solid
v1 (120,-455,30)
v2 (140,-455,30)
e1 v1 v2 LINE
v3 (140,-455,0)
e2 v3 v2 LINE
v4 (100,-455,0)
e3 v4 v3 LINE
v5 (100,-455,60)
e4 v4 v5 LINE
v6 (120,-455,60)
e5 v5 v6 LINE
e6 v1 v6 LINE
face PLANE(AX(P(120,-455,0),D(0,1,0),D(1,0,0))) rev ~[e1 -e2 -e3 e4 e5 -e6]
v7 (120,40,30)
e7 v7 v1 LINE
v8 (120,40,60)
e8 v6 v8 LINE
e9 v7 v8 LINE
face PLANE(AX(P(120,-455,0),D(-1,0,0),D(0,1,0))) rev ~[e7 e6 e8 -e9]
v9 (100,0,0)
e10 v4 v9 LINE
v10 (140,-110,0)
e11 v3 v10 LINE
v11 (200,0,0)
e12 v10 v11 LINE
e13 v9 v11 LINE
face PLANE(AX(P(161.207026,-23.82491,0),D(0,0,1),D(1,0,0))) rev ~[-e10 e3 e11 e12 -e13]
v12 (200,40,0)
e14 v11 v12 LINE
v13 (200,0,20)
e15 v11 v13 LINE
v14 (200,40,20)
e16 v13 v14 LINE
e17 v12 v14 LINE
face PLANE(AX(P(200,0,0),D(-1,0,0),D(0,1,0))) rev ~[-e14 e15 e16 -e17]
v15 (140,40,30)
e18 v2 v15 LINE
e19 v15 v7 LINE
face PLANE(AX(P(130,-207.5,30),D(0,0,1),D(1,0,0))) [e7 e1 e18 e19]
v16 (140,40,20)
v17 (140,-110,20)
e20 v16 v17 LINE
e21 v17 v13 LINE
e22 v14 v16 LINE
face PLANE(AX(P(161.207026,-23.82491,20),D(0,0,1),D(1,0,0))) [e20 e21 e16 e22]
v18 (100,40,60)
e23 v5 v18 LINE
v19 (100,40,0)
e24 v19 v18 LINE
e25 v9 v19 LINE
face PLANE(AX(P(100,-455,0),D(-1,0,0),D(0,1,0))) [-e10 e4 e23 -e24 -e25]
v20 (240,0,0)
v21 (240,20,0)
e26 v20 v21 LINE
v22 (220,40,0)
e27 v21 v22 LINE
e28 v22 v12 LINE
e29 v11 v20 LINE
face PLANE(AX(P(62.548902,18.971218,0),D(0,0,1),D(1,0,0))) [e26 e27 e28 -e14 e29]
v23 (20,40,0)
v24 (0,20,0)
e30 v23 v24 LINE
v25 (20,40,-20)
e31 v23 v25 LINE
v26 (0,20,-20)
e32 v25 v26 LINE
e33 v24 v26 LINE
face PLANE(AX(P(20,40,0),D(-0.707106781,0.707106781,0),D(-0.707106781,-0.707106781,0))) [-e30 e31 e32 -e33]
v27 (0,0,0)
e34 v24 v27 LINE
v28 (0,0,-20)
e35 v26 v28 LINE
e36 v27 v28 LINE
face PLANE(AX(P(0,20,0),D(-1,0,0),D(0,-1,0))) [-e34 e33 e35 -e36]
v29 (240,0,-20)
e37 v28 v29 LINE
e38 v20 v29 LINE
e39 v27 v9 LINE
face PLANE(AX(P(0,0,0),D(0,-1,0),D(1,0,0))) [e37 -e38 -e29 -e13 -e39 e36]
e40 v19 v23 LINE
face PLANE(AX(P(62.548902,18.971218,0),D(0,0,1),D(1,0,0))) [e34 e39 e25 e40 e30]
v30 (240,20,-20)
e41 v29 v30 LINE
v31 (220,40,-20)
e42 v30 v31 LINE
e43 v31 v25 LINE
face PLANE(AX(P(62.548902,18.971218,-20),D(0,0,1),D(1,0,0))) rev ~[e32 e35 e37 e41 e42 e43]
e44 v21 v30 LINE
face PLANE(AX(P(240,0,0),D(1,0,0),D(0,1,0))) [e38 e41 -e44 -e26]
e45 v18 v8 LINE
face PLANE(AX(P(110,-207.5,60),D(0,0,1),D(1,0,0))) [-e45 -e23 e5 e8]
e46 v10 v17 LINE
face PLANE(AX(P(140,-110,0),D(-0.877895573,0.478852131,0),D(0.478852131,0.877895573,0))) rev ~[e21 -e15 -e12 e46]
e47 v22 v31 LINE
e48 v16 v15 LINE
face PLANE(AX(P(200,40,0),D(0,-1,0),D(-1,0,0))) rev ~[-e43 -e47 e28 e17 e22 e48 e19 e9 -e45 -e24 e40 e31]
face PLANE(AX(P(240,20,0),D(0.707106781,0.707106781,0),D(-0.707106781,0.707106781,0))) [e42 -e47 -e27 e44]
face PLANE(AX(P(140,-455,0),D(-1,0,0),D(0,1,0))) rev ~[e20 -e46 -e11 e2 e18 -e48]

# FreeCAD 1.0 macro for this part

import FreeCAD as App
import Part
import Sketcher

V = App.Vector

doc = App.newDocument("Part")
body = doc.addObject("PartDesign::Body", "Body")

# Sketch on XY plane
sketch1 = body.newObject("Sketcher::SketchObject", "Sketch")
sketch1.AttachmentSupport = (doc.getObject("XY_Plane"), [""])
sketch1.MapMode = "FlatFace"
sketch1.addGeometry(Part.LineSegment(V(20, 40, 0), V(0, 20, 0)), False)
sketch1.addGeometry(Part.LineSegment(V(0, 20, 0), V(0, 0, 0)), False)
sketch1.addGeometry(Part.LineSegment(V(0, 0, 0), V(240, 0, 0)), False)
sketch1.addGeometry(Part.LineSegment(V(240, 0, 0), V(240, 20, 0)), False)
sketch1.addGeometry(Part.LineSegment(V(240, 20, 0), V(220, 40, 0)), False)
sketch1.addGeometry(Part.LineSegment(V(220, 40, 0), V(20, 40, 0)), False)
sketch1.addConstraint(Sketcher.Constraint("Coincident", 0, 2, 1, 1))
sketch1.addConstraint(Sketcher.Constraint("Coincident", 1, 2, 2, 1))
sketch1.addConstraint(Sketcher.Constraint("Coincident", 2, 2, 3, 1))
sketch1.addConstraint(Sketcher.Constraint("Coincident", 3, 2, 4, 1))
sketch1.addConstraint(Sketcher.Constraint("Coincident", 4, 2, 5, 1))
sketch1.addConstraint(Sketcher.Constraint("Coincident", 5, 2, 0, 1))
sketch1.addConstraint(Sketcher.Constraint("Vertical", 1))
sketch1.addConstraint(Sketcher.Constraint("Horizontal", 2))
sketch1.addConstraint(Sketcher.Constraint("Vertical", 3))
sketch1.addConstraint(Sketcher.Constraint("Horizontal", 5))
sketch1.addConstraint(Sketcher.Constraint("Coincident", 1, 2, -1, 1))
sketch1.addConstraint(Sketcher.Constraint("Perpendicular", 0, 4))
sketch1.addConstraint(Sketcher.Constraint("Horizontal", 0, 2, 3, 2))
sketch1.addConstraint(Sketcher.Constraint("Equal", 0, 4))
sketch1.addConstraint(Sketcher.Constraint("DistanceX", 2, 1, 2, 2, 240.0))
sketch1.addConstraint(Sketcher.Constraint("DistanceX", 5, 2, 5, 1, 200.0))
sketch1.addConstraint(Sketcher.Constraint("DistanceY", 1, 2, 1, 1, 20.0))
pad1 = body.newObject("PartDesign::Pad", "Pad")
pad1.Profile = sketch1
pad1.Length = 20
pad1.Reversed = True

# Sketch on XY plane
sketch2 = body.newObject("Sketcher::SketchObject", "Sketch001")
sketch2.AttachmentSupport = (doc.getObject("XY_Plane"), [""])
sketch2.MapMode = "FlatFace"
sketch2.addGeometry(Part.LineSegment(V(100, 40, 0), V(100, -455, 0)), False)
sketch2.addGeometry(Part.LineSegment(V(100, -455, 0), V(120, -455, 0)), False)
sketch2.addGeometry(Part.LineSegment(V(120, -455, 0), V(120, 40, 0)), False)
sketch2.addGeometry(Part.LineSegment(V(120, 40, 0), V(100, 40, 0)), False)
sketch2.addConstraint(Sketcher.Constraint("Coincident", 0, 2, 1, 1))
sketch2.addConstraint(Sketcher.Constraint("Coincident", 1, 2, 2, 1))
sketch2.addConstraint(Sketcher.Constraint("Coincident", 2, 2, 3, 1))
sketch2.addConstraint(Sketcher.Constraint("Coincident", 3, 2, 0, 1))
sketch2.addConstraint(Sketcher.Constraint("Vertical", 0))
sketch2.addConstraint(Sketcher.Constraint("Horizontal", 1))
sketch2.addConstraint(Sketcher.Constraint("Vertical", 2))
sketch2.addConstraint(Sketcher.Constraint("Horizontal", 3))
sketch2.addConstraint(Sketcher.Constraint("DistanceX", 1, 1, 1, 2, 20.0))
sketch2.addConstraint(Sketcher.Constraint("DistanceY", 0, 2, 0, 1, 495.0))
sketch2.addConstraint(Sketcher.Constraint("DistanceX", -1, 1, 0, 2, 100.0))
sketch2.addConstraint(Sketcher.Constraint("DistanceY", 0, 2, -1, 1, 455.0))
pad2 = body.newObject("PartDesign::Pad", "Pad001")
pad2.Profile = sketch2
pad2.Length = 60

# Sketch on XY plane
sketch3 = body.newObject("Sketcher::SketchObject", "Sketch002")
sketch3.AttachmentSupport = (doc.getObject("XY_Plane"), [""])
sketch3.MapMode = "FlatFace"
sketch3.addGeometry(Part.LineSegment(V(140, 40, 0), V(120, 40, 0)), False)
sketch3.addGeometry(Part.LineSegment(V(120, 40, 0), V(120, -455, 0)), False)
sketch3.addGeometry(Part.LineSegment(V(120, -455, 0), V(140, -455, 0)), False)
sketch3.addGeometry(Part.LineSegment(V(140, -455, 0), V(140, 40, 0)), False)
sketch3.addConstraint(Sketcher.Constraint("Coincident", 0, 2, 1, 1))
sketch3.addConstraint(Sketcher.Constraint("Coincident", 1, 2, 2, 1))
sketch3.addConstraint(Sketcher.Constraint("Coincident", 2, 2, 3, 1))
sketch3.addConstraint(Sketcher.Constraint("Coincident", 3, 2, 0, 1))
sketch3.addConstraint(Sketcher.Constraint("Horizontal", 0))
sketch3.addConstraint(Sketcher.Constraint("Vertical", 1))
sketch3.addConstraint(Sketcher.Constraint("Horizontal", 2))
sketch3.addConstraint(Sketcher.Constraint("Vertical", 3))
sketch3.addConstraint(Sketcher.Constraint("DistanceX", 0, 2, 0, 1, 20.0))
sketch3.addConstraint(Sketcher.Constraint("DistanceY", 1, 2, 1, 1, 495.0))
sketch3.addConstraint(Sketcher.Constraint("DistanceX", -1, 1, 0, 2, 120.0))
sketch3.addConstraint(Sketcher.Constraint("DistanceY", -1, 1, 0, 2, 40.0))
pad3 = body.newObject("PartDesign::Pad", "Pad002")
pad3.Profile = sketch3
pad3.Length = 30

# Sketch on XY plane
sketch4 = body.newObject("Sketcher::SketchObject", "Sketch003")
sketch4.AttachmentSupport = (doc.getObject("XY_Plane"), [""])
sketch4.MapMode = "FlatFace"
sketch4.addGeometry(Part.LineSegment(V(200, 40, 0), V(140, 40, 0)), False)
sketch4.addGeometry(Part.LineSegment(V(140, 40, 0), V(140, -110, 0)), False)
sketch4.addGeometry(Part.LineSegment(V(140, -110, 0), V(200, 0, 0)), False)
sketch4.addGeometry(Part.LineSegment(V(200, 0, 0), V(200, 40, 0)), False)
sketch4.addConstraint(Sketcher.Constraint("Coincident", 0, 2, 1, 1))
sketch4.addConstraint(Sketcher.Constraint("Coincident", 1, 2, 2, 1))
sketch4.addConstraint(Sketcher.Constraint("Coincident", 2, 2, 3, 1))
sketch4.addConstraint(Sketcher.Constraint("Coincident", 3, 2, 0, 1))
sketch4.addConstraint(Sketcher.Constraint("Horizontal", 0))
sketch4.addConstraint(Sketcher.Constraint("Vertical", 1))
sketch4.addConstraint(Sketcher.Constraint("Vertical", 3))
sketch4.addConstraint(Sketcher.Constraint("PointOnObject", 2, 2, -1))
sketch4.addConstraint(Sketcher.Constraint("DistanceX", 0, 2, 0, 1, 60.0))
sketch4.addConstraint(Sketcher.Constraint("DistanceY", 1, 2, 1, 1, 150.0))
sketch4.addConstraint(Sketcher.Constraint("DistanceY", 3, 1, 3, 2, 40.0))
sketch4.addConstraint(Sketcher.Constraint("DistanceX", -1, 1, 0, 2, 140.0))
pad4 = body.newObject("PartDesign::Pad", "Pad003")
pad4.Profile = sketch4
pad4.Length = 20

doc.recompute()
